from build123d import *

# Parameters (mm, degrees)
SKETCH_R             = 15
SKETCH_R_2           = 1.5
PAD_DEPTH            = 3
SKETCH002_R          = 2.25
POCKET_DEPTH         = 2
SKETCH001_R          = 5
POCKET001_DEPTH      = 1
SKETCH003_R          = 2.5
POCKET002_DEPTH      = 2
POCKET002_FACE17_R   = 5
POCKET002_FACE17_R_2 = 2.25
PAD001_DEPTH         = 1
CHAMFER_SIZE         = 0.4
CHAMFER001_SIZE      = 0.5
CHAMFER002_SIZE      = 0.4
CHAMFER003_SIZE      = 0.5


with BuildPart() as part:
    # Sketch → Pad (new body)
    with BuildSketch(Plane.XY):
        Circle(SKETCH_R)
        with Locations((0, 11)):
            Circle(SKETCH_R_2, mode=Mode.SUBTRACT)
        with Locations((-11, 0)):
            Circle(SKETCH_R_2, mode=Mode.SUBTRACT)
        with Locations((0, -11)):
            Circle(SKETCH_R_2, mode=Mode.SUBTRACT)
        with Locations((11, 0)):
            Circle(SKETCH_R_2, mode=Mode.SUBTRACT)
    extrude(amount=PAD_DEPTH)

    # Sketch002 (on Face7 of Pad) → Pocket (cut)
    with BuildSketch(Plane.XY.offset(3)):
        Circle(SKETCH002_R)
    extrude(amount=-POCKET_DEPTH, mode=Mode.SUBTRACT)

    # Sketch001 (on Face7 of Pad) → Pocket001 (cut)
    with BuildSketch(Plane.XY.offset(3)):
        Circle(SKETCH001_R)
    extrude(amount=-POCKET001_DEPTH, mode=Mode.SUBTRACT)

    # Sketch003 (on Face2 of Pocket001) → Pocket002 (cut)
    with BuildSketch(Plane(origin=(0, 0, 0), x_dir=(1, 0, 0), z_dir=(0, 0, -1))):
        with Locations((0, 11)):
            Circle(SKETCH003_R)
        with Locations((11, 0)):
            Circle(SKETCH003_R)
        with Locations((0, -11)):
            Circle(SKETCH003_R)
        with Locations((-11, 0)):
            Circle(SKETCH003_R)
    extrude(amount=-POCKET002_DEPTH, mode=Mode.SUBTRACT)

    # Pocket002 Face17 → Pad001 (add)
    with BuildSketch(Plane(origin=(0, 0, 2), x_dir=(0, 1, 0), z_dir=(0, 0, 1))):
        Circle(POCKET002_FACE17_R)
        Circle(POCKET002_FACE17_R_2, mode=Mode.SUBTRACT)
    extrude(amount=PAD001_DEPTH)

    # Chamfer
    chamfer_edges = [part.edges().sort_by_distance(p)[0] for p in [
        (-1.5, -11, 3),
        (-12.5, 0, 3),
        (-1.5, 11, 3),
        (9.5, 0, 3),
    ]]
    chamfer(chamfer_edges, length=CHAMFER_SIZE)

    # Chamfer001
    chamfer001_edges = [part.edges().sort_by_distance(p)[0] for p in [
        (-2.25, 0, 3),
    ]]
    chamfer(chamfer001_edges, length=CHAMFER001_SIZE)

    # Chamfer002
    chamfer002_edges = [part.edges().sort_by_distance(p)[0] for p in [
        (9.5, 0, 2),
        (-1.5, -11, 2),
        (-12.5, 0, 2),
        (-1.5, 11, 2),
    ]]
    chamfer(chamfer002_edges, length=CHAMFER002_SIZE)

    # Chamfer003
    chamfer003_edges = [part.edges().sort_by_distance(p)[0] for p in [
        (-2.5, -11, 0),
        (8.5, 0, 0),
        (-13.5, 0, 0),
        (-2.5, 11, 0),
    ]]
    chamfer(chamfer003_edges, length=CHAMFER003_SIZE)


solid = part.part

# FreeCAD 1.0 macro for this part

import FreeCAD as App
import Part
import Sketcher

V = App.Vector
Q = App.Units.Quantity


def edges_at(feature, points):
    """Names of the edges that pass closest to the given points."""
    edges = feature.Shape.Edges
    near = lambda p: min(range(len(edges)), key=lambda i: edges[i].distToShape(Part.Vertex(*p))[0])
    return sorted({f"Edge{near(p) + 1}" for p in points})

doc = App.newDocument("Part")
body = doc.addObject("PartDesign::Body", "Body")

sketch1 = body.newObject("Sketcher::SketchObject", "Sketch")
sketch1.AttachmentSupport = (doc.getObject("XY_Plane"), [""])
sketch1.MapMode = "FlatFace"
sketch1.addGeometry(Part.Circle(V(0, 0, 0), V(0, 0, 1), 15), False)
sketch1.addGeometry(Part.Circle(V(0, -11, 0), V(0, 0, 1), 1.5), False)
sketch1.addGeometry(Part.Circle(V(-11, 0, 0), V(0, 0, 1), 1.5), False)
sketch1.addGeometry(Part.Circle(V(11, 0, 0), V(0, 0, 1), 1.5), False)
sketch1.addGeometry(Part.Circle(V(0, 11, 0), V(0, 0, 1), 1.5), False)
sketch1.addConstraint(Sketcher.Constraint("Coincident", 0, 3, -1, 1))
sketch1.addConstraint(Sketcher.Constraint("Equal", 1, 2))
sketch1.addConstraint(Sketcher.Constraint("Equal", 2, 3))
sketch1.addConstraint(Sketcher.Constraint("Equal", 3, 4))
sketch1.addConstraint(Sketcher.Constraint("Symmetric", 2, 3, 3, 3, -1, 1))
sketch1.addConstraint(Sketcher.Constraint("Symmetric", 1, 3, 4, 3, -1, 1))
sketch1.addConstraint(Sketcher.Constraint("PointOnObject", 1, 3, -2))
sketch1.addConstraint(Sketcher.Constraint("PointOnObject", 2, 3, -1))
sketch1.addConstraint(Sketcher.Constraint("Diameter", 0, Q("30 mm")))
sketch1.addConstraint(Sketcher.Constraint("Diameter", 1, Q("3 mm")))
sketch1.addConstraint(Sketcher.Constraint("DistanceY", 1, 3, -1, 1, Q("11 mm")))
sketch1.addConstraint(Sketcher.Constraint("DistanceX", 2, 3, -1, 1, Q("11 mm")))
pad1 = body.newObject("PartDesign::Pad", "Pad")
pad1.Profile = sketch1
pad1.Length = 3

sketch2 = body.newObject("Sketcher::SketchObject", "Sketch001")
sketch2.AttachmentSupport = (doc.getObject("XY_Plane"), [""])
sketch2.MapMode = "FlatFace"
sketch2.AttachmentOffset = App.Placement(V(0, 0, 3), App.Rotation())
sketch2.addGeometry(Part.Circle(V(0, 0, 0), V(0, 0, 1), 2.2), False)
sketch2.addConstraint(Sketcher.Constraint("Coincident", 0, 3, -1, 1))
sketch2.addConstraint(Sketcher.Constraint("Diameter", 0, Q("4.5 mm")))
pocket1 = body.newObject("PartDesign::Pocket", "Pocket")
pocket1.Profile = sketch2
pocket1.Length = 2

sketch3 = body.newObject("Sketcher::SketchObject", "Sketch002")
sketch3.AttachmentSupport = (doc.getObject("XY_Plane"), [""])
sketch3.MapMode = "FlatFace"
sketch3.AttachmentOffset = App.Placement(V(0, 0, 3), App.Rotation())
sketch3.addGeometry(Part.Circle(V(0, 0, 0), V(0, 0, 1), 5), False)
sketch3.addConstraint(Sketcher.Constraint("Coincident", 0, 3, -1, 1))
sketch3.addConstraint(Sketcher.Constraint("Diameter", 0, Q("10 mm")))
pocket2 = body.newObject("PartDesign::Pocket", "Pocket001")
pocket2.Profile = sketch3
pocket2.Length = 1

sketch4 = body.newObject("Sketcher::SketchObject", "Sketch003")
sketch4.AttachmentSupport = (doc.getObject("XY_Plane"), [""])
sketch4.MapMode = "FlatFace"
sketch4.addGeometry(Part.Circle(V(0, -11, 0), V(0, 0, 1), 2.5), False)
sketch4.addGeometry(Part.Circle(V(11, 0, 0), V(0, 0, 1), 2.5), False)
sketch4.addGeometry(Part.Circle(V(0, 11, 0), V(0, 0, 1), 2.5), False)
sketch4.addGeometry(Part.Circle(V(-11, 0, 0), V(0, 0, 1), 2.5), False)
sketch4.addConstraint(Sketcher.Constraint("Equal", 0, 1))
sketch4.addConstraint(Sketcher.Constraint("Equal", 1, 2))
sketch4.addConstraint(Sketcher.Constraint("Equal", 2, 3))
sketch4.addConstraint(Sketcher.Constraint("Symmetric", 0, 3, 2, 3, -1, 1))
sketch4.addConstraint(Sketcher.Constraint("Symmetric", 1, 3, 3, 3, -1, 1))
sketch4.addConstraint(Sketcher.Constraint("PointOnObject", 0, 3, -2))
sketch4.addConstraint(Sketcher.Constraint("PointOnObject", 1, 3, -1))
sketch4.addConstraint(Sketcher.Constraint("Diameter", 0, Q("5 mm")))
sketch4.addConstraint(Sketcher.Constraint("DistanceY", 0, 3, -1, 1, Q("11 mm")))
sketch4.addConstraint(Sketcher.Constraint("DistanceX", -1, 1, 1, 3, Q("11 mm")))
pocket3 = body.newObject("PartDesign::Pocket", "Pocket002")
pocket3.Profile = sketch4
pocket3.Length = 2
pocket3.Reversed = True

sketch5 = body.newObject("Sketcher::SketchObject", "Sketch004")
sketch5.AttachmentSupport = (doc.getObject("XY_Plane"), [""])
sketch5.MapMode = "FlatFace"
sketch5.AttachmentOffset = App.Placement(V(0, 0, 2), App.Rotation())
sketch5.addGeometry(Part.Circle(V(0, 0, 0), V(0, 0, 1), 5), False)
sketch5.addGeometry(Part.Circle(V(0, 0, 0), V(0, 0, 1), 2.2), False)
sketch5.addConstraint(Sketcher.Constraint("Coincident", 0, 3, -1, 1))
sketch5.addConstraint(Sketcher.Constraint("Coincident", 1, 3, -1, 1))
sketch5.addConstraint(Sketcher.Constraint("Diameter", 0, Q("10 mm")))
sketch5.addConstraint(Sketcher.Constraint("Diameter", 1, Q("4.5 mm")))
pad2 = body.newObject("PartDesign::Pad", "Pad001")
pad2.Profile = sketch5
pad2.Length = 1
doc.recompute()

chamfer = body.newObject("PartDesign::Chamfer", "Chamfer")
chamfer.Base = (pad2, edges_at(pad2, [
    (-1.5, -11, 3),
    (-12.5, 0, 3),
    (-1.5, 11, 3),
    (9.5, 0, 3),
]))
chamfer.Size = 0.4
doc.recompute()

chamfer2 = body.newObject("PartDesign::Chamfer", "Chamfer001")
chamfer2.Base = (chamfer, edges_at(chamfer, [(0, -2.25, 3)]))
chamfer2.Size = 0.5
doc.recompute()

chamfer3 = body.newObject("PartDesign::Chamfer", "Chamfer002")
chamfer3.Base = (chamfer2, edges_at(chamfer2, [
    (9.5, 0, 2),
    (-1.5, -11, 2),
    (-12.5, 0, 2),
    (-1.5, 11, 2),
]))
chamfer3.Size = 0.4
doc.recompute()

chamfer4 = body.newObject("PartDesign::Chamfer", "Chamfer003")
chamfer4.Base = (chamfer3, edges_at(chamfer3, [
    (-2.5, -11, 0),
    (8.5, 0, 0),
    (-13.5, 0, 0),
    (-2.5, 11, 0),
]))
chamfer4.Size = 0.5

doc.recompute()
